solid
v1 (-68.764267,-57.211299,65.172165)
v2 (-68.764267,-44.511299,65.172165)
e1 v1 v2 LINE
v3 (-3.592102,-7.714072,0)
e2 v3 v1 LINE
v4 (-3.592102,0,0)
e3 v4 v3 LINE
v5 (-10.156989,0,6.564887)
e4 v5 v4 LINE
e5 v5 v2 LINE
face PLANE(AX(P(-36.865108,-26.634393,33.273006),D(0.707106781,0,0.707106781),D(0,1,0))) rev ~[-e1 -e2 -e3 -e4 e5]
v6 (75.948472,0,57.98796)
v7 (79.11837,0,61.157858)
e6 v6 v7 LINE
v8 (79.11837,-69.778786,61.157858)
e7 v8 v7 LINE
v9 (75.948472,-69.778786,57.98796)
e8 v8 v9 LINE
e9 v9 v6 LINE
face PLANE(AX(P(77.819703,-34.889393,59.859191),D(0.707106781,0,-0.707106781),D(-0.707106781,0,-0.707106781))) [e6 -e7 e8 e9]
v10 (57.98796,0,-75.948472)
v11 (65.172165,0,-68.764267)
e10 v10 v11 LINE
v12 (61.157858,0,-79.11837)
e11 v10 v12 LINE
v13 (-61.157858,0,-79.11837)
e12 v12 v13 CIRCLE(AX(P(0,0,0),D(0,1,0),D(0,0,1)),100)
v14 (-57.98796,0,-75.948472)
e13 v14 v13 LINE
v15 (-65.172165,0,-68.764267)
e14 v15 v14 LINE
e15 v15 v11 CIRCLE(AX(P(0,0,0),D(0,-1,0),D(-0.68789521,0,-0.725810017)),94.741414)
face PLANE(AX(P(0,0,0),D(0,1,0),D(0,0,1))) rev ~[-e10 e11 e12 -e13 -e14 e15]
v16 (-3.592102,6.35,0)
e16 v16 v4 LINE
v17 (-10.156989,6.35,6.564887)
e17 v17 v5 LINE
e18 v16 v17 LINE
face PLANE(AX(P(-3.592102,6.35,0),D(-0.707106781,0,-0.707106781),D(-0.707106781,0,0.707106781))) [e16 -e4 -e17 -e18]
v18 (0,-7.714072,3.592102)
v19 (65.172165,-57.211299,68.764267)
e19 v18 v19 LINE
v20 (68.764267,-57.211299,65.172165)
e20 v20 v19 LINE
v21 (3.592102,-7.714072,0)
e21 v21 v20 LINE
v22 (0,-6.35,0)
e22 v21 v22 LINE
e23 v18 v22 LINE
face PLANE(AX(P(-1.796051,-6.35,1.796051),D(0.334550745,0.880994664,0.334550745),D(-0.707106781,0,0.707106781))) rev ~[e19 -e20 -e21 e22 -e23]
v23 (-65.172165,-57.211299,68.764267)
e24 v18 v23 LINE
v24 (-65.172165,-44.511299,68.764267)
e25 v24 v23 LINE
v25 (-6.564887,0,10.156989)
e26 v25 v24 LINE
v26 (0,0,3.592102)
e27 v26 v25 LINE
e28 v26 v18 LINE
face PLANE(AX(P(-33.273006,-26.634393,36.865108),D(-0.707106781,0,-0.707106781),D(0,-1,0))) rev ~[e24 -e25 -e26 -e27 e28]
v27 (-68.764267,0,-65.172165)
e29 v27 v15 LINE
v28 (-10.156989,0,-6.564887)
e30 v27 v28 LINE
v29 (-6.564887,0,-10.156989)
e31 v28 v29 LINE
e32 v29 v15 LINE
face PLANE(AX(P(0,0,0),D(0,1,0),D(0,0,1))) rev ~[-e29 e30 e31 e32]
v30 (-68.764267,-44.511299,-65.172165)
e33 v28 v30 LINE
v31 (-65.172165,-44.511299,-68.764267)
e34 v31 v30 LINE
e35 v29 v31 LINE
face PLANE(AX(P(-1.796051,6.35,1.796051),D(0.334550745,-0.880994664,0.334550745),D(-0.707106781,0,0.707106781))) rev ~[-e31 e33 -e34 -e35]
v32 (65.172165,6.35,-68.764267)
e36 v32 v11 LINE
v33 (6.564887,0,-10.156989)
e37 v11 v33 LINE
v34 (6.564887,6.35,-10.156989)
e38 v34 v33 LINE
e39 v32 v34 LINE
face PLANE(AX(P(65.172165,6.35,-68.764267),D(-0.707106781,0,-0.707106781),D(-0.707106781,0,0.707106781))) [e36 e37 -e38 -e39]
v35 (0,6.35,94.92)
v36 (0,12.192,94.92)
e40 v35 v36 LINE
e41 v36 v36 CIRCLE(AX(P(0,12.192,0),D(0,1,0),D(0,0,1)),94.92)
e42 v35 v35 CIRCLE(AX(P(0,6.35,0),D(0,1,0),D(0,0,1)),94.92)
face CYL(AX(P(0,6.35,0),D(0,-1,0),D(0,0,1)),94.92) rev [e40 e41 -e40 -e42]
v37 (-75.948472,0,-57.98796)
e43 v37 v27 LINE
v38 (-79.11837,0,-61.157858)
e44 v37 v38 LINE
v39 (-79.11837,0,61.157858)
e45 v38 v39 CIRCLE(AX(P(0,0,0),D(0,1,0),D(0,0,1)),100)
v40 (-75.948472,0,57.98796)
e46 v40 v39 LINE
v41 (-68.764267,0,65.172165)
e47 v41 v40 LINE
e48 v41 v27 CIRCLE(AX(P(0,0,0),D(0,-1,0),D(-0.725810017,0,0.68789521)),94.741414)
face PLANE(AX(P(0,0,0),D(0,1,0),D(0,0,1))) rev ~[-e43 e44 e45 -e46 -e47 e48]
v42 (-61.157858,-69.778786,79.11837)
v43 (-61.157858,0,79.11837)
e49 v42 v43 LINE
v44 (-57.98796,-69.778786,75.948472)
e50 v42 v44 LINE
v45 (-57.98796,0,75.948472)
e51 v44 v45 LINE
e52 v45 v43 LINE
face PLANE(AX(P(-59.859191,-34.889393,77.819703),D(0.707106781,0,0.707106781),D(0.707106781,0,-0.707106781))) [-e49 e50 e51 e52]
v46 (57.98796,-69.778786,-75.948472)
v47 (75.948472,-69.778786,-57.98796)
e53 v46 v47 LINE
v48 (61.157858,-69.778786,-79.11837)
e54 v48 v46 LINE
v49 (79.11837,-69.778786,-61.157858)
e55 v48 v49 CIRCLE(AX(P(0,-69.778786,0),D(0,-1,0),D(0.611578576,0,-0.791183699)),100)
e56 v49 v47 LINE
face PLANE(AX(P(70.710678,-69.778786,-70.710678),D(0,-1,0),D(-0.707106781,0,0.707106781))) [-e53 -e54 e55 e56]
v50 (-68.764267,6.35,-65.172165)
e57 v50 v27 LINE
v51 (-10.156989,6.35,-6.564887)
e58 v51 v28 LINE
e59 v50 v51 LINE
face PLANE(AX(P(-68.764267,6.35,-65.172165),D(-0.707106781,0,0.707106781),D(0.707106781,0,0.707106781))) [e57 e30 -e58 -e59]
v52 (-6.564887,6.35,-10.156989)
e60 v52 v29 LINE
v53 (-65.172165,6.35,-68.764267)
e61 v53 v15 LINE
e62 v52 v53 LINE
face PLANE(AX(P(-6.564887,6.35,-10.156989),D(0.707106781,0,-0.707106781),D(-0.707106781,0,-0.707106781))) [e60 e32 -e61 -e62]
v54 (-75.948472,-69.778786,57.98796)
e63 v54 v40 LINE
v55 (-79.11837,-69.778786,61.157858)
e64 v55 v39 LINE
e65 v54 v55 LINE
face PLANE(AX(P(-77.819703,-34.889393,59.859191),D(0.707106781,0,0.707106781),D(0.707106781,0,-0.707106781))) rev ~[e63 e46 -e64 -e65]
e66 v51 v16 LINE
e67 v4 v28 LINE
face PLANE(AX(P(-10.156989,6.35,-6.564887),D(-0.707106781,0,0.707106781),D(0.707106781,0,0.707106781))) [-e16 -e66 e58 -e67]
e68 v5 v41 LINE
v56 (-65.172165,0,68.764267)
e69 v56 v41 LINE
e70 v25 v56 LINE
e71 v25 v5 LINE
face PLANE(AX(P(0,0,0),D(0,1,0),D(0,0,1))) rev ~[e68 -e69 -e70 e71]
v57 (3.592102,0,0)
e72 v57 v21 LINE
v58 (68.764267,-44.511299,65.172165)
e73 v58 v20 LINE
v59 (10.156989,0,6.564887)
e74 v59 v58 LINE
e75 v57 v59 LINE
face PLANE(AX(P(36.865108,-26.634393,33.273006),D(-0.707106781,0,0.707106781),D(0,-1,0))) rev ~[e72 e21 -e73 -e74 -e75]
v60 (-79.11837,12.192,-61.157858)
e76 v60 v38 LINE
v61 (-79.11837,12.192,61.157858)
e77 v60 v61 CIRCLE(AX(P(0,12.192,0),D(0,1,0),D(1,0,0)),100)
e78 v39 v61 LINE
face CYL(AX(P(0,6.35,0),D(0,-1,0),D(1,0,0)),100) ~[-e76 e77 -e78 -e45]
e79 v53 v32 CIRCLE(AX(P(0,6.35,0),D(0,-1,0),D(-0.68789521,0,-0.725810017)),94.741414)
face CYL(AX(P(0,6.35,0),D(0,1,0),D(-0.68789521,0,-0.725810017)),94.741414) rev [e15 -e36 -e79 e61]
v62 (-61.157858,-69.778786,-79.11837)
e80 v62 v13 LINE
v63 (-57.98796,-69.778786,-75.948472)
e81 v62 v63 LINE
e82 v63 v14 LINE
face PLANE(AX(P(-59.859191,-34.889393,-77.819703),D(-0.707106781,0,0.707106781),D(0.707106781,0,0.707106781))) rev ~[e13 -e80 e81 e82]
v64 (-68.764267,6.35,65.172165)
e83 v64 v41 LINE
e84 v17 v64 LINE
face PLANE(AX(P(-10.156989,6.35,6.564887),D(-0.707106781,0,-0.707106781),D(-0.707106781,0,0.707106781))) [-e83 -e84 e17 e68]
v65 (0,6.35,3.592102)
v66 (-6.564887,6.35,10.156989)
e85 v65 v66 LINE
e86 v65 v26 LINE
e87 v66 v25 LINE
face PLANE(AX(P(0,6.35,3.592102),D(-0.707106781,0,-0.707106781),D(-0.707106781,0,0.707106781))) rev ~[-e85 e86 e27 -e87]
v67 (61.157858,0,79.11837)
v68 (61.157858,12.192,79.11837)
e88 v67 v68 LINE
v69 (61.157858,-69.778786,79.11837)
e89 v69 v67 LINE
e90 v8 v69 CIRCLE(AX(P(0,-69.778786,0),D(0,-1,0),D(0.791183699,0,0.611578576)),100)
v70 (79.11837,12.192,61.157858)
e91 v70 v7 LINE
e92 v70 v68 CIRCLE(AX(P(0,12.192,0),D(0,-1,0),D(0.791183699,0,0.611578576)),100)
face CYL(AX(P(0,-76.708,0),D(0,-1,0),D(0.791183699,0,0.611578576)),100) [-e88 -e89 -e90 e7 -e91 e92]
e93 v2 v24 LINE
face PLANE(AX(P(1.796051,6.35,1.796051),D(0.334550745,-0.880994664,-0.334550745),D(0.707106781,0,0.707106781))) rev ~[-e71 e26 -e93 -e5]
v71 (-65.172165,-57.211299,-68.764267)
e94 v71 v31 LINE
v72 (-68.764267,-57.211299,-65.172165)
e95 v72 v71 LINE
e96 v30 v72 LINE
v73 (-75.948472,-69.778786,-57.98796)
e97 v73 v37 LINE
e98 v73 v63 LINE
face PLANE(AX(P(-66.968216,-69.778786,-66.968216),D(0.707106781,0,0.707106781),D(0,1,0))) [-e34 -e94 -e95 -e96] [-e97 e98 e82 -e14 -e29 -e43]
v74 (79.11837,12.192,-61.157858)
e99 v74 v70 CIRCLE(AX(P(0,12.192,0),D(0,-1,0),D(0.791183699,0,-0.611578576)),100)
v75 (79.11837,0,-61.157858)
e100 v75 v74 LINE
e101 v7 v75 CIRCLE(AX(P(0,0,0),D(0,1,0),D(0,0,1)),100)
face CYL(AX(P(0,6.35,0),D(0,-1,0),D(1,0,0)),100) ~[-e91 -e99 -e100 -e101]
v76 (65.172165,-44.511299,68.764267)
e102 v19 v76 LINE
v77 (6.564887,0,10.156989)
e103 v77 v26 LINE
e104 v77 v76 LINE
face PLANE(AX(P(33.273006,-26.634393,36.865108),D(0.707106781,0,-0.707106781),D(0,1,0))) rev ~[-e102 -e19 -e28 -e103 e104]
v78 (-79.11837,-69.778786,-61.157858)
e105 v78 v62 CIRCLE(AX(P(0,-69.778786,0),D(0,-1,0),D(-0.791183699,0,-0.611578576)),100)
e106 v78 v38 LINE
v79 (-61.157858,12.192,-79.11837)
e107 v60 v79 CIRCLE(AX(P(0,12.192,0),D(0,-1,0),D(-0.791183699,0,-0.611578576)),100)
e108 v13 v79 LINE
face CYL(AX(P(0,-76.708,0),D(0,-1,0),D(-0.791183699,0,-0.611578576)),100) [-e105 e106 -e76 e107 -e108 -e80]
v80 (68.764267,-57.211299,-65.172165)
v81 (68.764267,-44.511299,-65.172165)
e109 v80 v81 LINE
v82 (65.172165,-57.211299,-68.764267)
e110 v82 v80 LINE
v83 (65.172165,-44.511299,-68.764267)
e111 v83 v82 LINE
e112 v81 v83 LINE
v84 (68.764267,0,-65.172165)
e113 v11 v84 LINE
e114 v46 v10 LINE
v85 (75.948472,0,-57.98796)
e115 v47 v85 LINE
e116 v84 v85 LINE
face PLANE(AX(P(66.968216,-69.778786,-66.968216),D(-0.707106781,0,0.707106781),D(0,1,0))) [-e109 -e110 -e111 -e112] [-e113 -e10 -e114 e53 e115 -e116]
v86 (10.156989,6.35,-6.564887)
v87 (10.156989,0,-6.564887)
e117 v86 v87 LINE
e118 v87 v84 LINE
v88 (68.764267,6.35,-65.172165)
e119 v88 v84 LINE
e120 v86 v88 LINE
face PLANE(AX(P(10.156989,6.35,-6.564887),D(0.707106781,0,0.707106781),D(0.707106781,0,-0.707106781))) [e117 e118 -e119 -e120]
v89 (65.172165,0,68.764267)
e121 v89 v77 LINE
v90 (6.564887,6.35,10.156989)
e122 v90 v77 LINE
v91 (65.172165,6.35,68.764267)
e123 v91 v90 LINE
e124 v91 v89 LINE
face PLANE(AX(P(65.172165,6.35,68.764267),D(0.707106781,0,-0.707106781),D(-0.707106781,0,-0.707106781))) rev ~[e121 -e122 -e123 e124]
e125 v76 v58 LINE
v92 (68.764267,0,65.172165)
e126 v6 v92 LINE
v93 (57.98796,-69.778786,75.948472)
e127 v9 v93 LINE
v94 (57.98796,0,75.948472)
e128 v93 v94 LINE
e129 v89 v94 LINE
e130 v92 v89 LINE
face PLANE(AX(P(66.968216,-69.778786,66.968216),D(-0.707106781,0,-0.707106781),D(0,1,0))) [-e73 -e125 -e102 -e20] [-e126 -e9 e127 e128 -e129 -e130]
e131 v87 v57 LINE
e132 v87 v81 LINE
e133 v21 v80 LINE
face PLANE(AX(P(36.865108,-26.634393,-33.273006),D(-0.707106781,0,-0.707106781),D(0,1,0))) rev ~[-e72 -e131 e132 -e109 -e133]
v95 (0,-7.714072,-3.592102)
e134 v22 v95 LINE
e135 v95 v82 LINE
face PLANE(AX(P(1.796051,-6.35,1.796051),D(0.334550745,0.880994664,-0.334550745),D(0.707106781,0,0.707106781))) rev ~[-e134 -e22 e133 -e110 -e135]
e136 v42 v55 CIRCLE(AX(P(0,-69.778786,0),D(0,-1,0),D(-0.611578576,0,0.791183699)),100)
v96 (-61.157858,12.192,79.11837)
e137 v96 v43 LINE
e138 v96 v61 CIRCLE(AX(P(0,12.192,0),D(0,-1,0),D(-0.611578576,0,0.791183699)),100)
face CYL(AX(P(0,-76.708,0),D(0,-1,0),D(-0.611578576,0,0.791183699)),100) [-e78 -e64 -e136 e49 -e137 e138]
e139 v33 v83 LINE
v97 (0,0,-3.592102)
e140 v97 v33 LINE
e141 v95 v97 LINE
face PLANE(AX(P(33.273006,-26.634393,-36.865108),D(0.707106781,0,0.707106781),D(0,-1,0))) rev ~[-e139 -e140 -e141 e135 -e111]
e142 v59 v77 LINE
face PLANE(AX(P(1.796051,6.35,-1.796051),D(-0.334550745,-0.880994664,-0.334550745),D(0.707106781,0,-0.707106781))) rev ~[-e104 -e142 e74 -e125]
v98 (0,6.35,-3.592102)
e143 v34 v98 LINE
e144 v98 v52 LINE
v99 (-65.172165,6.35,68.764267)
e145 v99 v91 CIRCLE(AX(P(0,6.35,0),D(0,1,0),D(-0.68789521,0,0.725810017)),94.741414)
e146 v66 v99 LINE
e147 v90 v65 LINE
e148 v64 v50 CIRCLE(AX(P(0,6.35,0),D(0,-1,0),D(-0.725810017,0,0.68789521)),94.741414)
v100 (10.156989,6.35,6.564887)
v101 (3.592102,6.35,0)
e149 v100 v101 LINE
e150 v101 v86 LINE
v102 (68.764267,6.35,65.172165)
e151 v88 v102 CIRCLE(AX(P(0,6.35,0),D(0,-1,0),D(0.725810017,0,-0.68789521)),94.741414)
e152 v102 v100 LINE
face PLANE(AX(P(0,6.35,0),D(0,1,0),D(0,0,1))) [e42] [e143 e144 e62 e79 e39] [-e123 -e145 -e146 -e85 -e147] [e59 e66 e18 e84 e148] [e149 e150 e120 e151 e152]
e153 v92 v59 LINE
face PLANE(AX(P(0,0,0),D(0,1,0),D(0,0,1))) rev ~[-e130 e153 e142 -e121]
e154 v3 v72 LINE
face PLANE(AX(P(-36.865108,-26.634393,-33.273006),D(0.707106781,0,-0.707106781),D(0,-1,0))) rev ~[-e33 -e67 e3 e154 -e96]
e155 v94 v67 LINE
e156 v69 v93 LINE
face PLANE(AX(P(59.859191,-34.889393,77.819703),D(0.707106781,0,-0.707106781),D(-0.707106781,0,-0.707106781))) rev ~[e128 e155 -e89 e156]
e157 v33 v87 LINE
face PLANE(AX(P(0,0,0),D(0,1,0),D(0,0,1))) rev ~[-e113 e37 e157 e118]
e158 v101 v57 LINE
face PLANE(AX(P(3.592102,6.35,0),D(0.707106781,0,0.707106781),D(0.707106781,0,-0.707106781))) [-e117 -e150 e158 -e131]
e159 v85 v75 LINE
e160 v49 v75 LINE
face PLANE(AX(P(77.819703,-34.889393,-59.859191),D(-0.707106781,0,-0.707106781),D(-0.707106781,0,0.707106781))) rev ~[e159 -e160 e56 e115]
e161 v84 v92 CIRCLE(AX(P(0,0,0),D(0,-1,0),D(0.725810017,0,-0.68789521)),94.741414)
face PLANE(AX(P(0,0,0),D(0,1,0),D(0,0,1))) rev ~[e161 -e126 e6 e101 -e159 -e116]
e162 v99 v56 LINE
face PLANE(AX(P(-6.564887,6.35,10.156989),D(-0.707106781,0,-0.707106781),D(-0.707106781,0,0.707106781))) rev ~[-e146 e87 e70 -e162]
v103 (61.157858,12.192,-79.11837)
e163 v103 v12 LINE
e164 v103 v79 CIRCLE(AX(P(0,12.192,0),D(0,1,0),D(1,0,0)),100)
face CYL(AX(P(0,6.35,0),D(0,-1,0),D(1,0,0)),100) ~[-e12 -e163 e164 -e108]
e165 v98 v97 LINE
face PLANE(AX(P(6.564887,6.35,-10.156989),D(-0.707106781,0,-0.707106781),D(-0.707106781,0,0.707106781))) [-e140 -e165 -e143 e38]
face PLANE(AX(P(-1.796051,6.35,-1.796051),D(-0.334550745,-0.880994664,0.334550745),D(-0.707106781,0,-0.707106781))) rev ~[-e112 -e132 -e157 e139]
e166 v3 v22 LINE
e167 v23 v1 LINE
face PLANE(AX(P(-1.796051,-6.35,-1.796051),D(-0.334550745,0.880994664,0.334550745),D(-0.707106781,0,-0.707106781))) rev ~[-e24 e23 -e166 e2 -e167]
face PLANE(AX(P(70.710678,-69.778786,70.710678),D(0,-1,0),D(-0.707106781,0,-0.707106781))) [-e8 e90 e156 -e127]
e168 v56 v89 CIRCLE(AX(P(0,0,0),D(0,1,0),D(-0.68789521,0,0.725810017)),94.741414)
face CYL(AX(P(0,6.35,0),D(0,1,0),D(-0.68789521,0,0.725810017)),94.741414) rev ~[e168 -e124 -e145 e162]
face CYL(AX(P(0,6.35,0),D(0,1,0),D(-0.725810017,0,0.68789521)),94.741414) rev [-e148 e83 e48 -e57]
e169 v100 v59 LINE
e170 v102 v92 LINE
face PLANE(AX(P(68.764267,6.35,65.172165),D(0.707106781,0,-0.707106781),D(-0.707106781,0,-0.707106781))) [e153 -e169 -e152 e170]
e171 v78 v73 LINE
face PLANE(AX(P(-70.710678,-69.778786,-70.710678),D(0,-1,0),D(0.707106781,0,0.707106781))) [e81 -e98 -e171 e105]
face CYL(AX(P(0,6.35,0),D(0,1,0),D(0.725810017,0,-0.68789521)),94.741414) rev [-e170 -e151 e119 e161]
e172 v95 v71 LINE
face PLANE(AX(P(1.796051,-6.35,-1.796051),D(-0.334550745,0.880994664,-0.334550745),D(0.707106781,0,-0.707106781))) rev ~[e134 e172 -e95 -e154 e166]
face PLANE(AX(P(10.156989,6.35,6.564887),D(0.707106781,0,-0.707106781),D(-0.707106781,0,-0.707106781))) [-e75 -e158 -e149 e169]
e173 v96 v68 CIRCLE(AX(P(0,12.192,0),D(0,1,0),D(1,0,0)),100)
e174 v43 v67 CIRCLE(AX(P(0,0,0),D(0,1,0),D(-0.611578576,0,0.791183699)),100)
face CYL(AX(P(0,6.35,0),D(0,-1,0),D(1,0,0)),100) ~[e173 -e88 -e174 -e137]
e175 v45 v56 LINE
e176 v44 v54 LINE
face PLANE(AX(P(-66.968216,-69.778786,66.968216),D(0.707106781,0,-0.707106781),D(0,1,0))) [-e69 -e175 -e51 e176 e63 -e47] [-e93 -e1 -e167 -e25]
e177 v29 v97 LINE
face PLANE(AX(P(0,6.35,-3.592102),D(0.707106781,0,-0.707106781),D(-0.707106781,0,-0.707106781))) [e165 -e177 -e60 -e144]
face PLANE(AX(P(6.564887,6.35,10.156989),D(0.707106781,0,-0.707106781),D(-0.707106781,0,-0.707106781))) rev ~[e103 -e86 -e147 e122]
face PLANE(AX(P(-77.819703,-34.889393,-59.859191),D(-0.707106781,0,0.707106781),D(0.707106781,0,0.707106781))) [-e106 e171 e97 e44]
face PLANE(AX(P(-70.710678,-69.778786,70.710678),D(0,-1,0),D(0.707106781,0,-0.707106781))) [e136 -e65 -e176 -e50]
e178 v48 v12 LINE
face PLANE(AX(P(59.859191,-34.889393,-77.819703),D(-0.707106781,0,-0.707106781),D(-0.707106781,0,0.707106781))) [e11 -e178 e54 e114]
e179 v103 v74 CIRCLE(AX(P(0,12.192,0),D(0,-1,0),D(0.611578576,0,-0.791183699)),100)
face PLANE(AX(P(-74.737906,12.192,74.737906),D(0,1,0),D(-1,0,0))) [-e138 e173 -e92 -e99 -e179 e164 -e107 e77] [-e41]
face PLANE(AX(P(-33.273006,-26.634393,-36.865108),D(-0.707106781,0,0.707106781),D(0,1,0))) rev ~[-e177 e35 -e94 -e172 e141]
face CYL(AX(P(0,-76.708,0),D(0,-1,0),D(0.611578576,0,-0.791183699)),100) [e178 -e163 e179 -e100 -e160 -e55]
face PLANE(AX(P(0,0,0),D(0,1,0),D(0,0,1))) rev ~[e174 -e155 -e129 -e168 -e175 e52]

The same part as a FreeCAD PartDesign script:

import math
import FreeCAD as App
import Part
import Sketcher
Q = App.Units.Quantity

doc = App.newDocument("Part")
body = doc.addObject("PartDesign::Body", "Body")

# Sketch on XZ plane
sketch1 = doc.addObject("Sketcher::SketchObject", "Sketch")
body.addObject(sketch1)
sketch1.AttachmentSupport = (doc.XZ_Plane, [""])
sketch1.MapMode = "FlatFace"
sketch1.addGeometry(Part.Circle(App.Vector(0, 0, 0), App.Vector(0, 0, 1), 100), False)
sketch1.addConstraint([
    Sketcher.Constraint("Coincident", 0, 3, -1, 1),
    Sketcher.Constraint("Diameter", 0, Q("200 mm")),
])
pad1 = doc.addObject("PartDesign::Pad", "Pad")
body.addObject(pad1)
pad1.Profile = sketch1
pad1.Length = Q("0.25 in")
pad1.Reversed = True

# Sketch on XZ plane
sketch2 = doc.addObject("Sketcher::SketchObject", "Sketch001")
body.addObject(sketch2)
sketch2.AttachmentSupport = (doc.XZ_Plane, [""])
sketch2.MapMode = "FlatFace"
sketch2.AttachmentOffset = App.Placement(App.Vector(0, 0, -0.25 * 25.4), App.Rotation())
sketch2.addGeometry([
    Part.LineSegment(App.Vector(70.138114, 88.098626, 0), App.Vector(88.098626, 70.138114, 0)),  # 0
    Part.LineSegment(App.Vector(88.098626, 70.138114, 0), App.Vector(79.11837, 61.157858, 0)),  # 1
    Part.ArcOfCircle(Part.Circle(App.Vector(0, 0, 0), App.Vector(0, 0, 1), 100), math.radians(37.703732), math.radians(52.296268)),  # 2
    Part.LineSegment(App.Vector(61.157858, 79.11837, 0), App.Vector(70.138114, 88.098626, 0)),  # 3
    Part.ArcOfCircle(Part.Circle(App.Vector(0, 0, 0), App.Vector(0, 0, 1), 100), math.radians(-52.296268), math.radians(-37.703732)),  # 4
    Part.LineSegment(App.Vector(79.11837, -61.157858, 0), App.Vector(88.098626, -70.138114, 0)),  # 5
    Part.LineSegment(App.Vector(88.098626, -70.138114, 0), App.Vector(70.138114, -88.098626, 0)),  # 6
    Part.LineSegment(App.Vector(70.138114, -88.098626, 0), App.Vector(61.157858, -79.11837, 0)),  # 7
    Part.LineSegment(App.Vector(-88.098626, -70.138114, 0), App.Vector(-79.11837, -61.157858, 0)),  # 8
    Part.ArcOfCircle(Part.Circle(App.Vector(0, 0, 0), App.Vector(0, 0, 1), 100), math.radians(-142.296268), math.radians(-127.703732)),  # 9
    Part.LineSegment(App.Vector(-61.157858, -79.11837, 0), App.Vector(-70.138114, -88.098626, 0)),  # 10
    Part.LineSegment(App.Vector(-70.138114, -88.098626, 0), App.Vector(-88.098626, -70.138114, 0)),  # 11
    Part.LineSegment(App.Vector(-79.11837, 61.157858, 0), App.Vector(-88.098626, 70.138114, 0)),  # 12
    Part.LineSegment(App.Vector(-88.098626, 70.138114, 0), App.Vector(-70.138114, 88.098626, 0)),  # 13
    Part.LineSegment(App.Vector(-70.138114, 88.098626, 0), App.Vector(-61.157858, 79.11837, 0)),  # 14
    Part.ArcOfCircle(Part.Circle(App.Vector(0, 0, 0), App.Vector(0, 0, 1), 100), math.radians(127.703732), math.radians(142.296268)),  # 15
], False)
sketch2.addConstraint([
    Sketcher.Constraint("Coincident", 0, 2, 1, 1),
    Sketcher.Constraint("Coincident", 1, 2, 2, 1),
    Sketcher.Constraint("Coincident", 2, 2, 3, 1),
    Sketcher.Constraint("Coincident", 3, 2, 0, 1),
    Sketcher.Constraint("Coincident", 4, 2, 5, 1),
    Sketcher.Constraint("Coincident", 5, 2, 6, 1),
    Sketcher.Constraint("Coincident", 6, 2, 7, 1),
    Sketcher.Constraint("Coincident", 7, 2, 4, 1),
    Sketcher.Constraint("Coincident", 8, 2, 9, 1),
    Sketcher.Constraint("Coincident", 9, 2, 10, 1),
    Sketcher.Constraint("Coincident", 10, 2, 11, 1),
    Sketcher.Constraint("Coincident", 11, 2, 8, 1),
    Sketcher.Constraint("Coincident", 12, 2, 13, 1),
    Sketcher.Constraint("Coincident", 13, 2, 14, 1),
    Sketcher.Constraint("Coincident", 14, 2, 15, 1),
    Sketcher.Constraint("Coincident", 15, 2, 12, 1),
    Sketcher.Constraint("Coincident", 2, 3, -1, 1),
    Sketcher.Constraint("Coincident", 4, 3, -1, 1),
    Sketcher.Constraint("Coincident", 9, 3, -1, 1),
    Sketcher.Constraint("Coincident", 15, 3, -1, 1),
    Sketcher.Constraint("Equal", 2, 4),
    Sketcher.Constraint("Equal", 4, 9),
    Sketcher.Constraint("Equal", 9, 15),
    Sketcher.Constraint("Symmetric", 3, 2, 10, 2, -1, 1),
    Sketcher.Constraint("Symmetric", 0, 2, 11, 2, -1, 1),
    Sketcher.Constraint("Symmetric", 5, 2, 12, 2, -1, 1),
    Sketcher.Constraint("Symmetric", 6, 2, 13, 2, -1, 1),
    Sketcher.Constraint("Symmetric", 6, 2, 10, 2, -2),
    Sketcher.Constraint("Symmetric", 5, 2, 11, 2, -2),
    Sketcher.Constraint("Perpendicular", 0, 1),
    Sketcher.Constraint("Parallel", 1, 3),
    Sketcher.Constraint("Perpendicular", 3, 5),
    Sketcher.Constraint("Perpendicular", 5, 6),
    Sketcher.Constraint("Perpendicular", 6, 7),
    Sketcher.Constraint("Perpendicular", 7, 8),
    Sketcher.Constraint("Parallel", 8, 10),
    Sketcher.Constraint("Parallel", 11, 12),
    Sketcher.Constraint("Perpendicular", 13, 14),
    Sketcher.Constraint("Equal", 1, 3),
    Sketcher.Constraint("Distance", 0, Q("1 in")),
    Sketcher.Constraint("Distance", 1, Q("0.5 in")),
    Sketcher.Constraint("Radius", 2, Q("100 mm")),
])
pad2 = doc.addObject("PartDesign::Pad", "Pad001")
body.addObject(pad2)
pad2.Profile = sketch2
pad2.Type = "TwoLengths"
pad2.Length = Q("0.59 in")
pad2.Length2 = 76.128786
pad2.Reversed = True

# Sketch on XZ plane
sketch3 = doc.addObject("Sketcher::SketchObject", "Sketch002")
body.addObject(sketch3)
sketch3.AttachmentSupport = (doc.XZ_Plane, [""])
sketch3.MapMode = "FlatFace"
sketch3.AttachmentOffset = App.Placement(App.Vector(0, 0, -0.25 * 25.4), App.Rotation())
sketch3.addGeometry([
    Part.Circle(App.Vector(0, 0, 0), App.Vector(0, 0, 1), 100),
    Part.Circle(App.Vector(0, 0, 0), App.Vector(0, 0, 1), 94.92),
], False)
sketch3.addConstraint([
    Sketcher.Constraint("Coincident", 0, 3, -1, 1),
    Sketcher.Constraint("Coincident", 1, 3, -1, 1),
    Sketcher.Constraint("Diameter", 0, Q("200 mm")),
    Sketcher.Constraint("Diameter", 1, Q("189.84 mm")),
])
pad3 = doc.addObject("PartDesign::Pad", "Pad002")
body.addObject(pad3)
pad3.Profile = sketch3
pad3.Length = Q("0.23 in")
pad3.Reversed = True

# Sketch on an angled plane
sketch4 = doc.addObject("Sketcher::SketchObject", "Sketch003")
body.addObject(sketch4)
sketch4.Placement = App.Placement(App.Vector(-68.342063, -59.618786, -71.934165), App.Rotation(App.Vector(-0.262612866, 0.928476691, 0.262612866), App.Vector(-0.656532164, -0.371390677, 0.656532164), App.Vector(0.707106781, 0, 0.707106781), "ZXY"))
sketch4.addGeometry([
    Part.LineSegment(App.Vector(1.886665, 4.716662, 0), App.Vector(0, 0, 0)),
    Part.LineSegment(App.Vector(0, 0, 0), App.Vector(11.791654, -4.716662, 0)),
    Part.LineSegment(App.Vector(11.791654, -4.716662, 0), App.Vector(13.678319, 0, 0)),
    Part.LineSegment(App.Vector(13.678319, 0, 0), App.Vector(1.886665, 4.716662, 0)),
], False)
sketch4.addConstraint([
    Sketcher.Constraint("Coincident", 0, 2, 1, 1),
    Sketcher.Constraint("Coincident", 1, 2, 2, 1),
    Sketcher.Constraint("Coincident", 2, 2, 3, 1),
    Sketcher.Constraint("Coincident", 3, 2, 0, 1),
    Sketcher.Constraint("Coincident", 0, 2, -1, 1),
    Sketcher.Constraint("PointOnObject", 2, 2, -1),
    Sketcher.Constraint("Perpendicular", 0, 1),
    Sketcher.Constraint("Perpendicular", 1, 2),
    Sketcher.Constraint("Perpendicular", 2, 3),
    Sketcher.Constraint("Distance", 0, Q("0.2 in")),
    Sketcher.Constraint("Distance", 1, Q("0.5 in")),
])

# Sketch on an angled plane
sketch5 = doc.addObject("Sketcher::SketchObject", "Sketch004")
body.addObject(sketch5)
sketch5.Placement = App.Placement(App.Vector(0, 0, 0), App.Rotation(App.Vector(-0.707106781, 0, -0.707106781), App.Vector(0, 0.999999999, 0), App.Vector(0.707106781, 0, -0.707106781), "ZXY"))
sketch5.addGeometry(Part.LineSegment(App.Vector(0, 0, 0), App.Vector(99.190272, -53.268786, 0)), False)
sketch5.addConstraint([
    Sketcher.Constraint("Coincident", 0, 1, -1, 1),
    Sketcher.Constraint("Distance", 0, Q("112.588958 mm")),
    Sketcher.Constraint("DistanceX", -1, 1, 0, 2, Q("99.190272 mm")),
])
doc.recompute()

additivepipe = doc.addObject("PartDesign::AdditivePipe", "AdditivePipe")
body.addObject(additivepipe)
additivepipe.Profile = sketch4
additivepipe.Spine = (sketch5, ["Edge1"])
doc.recompute()

polarpattern = doc.addObject("PartDesign::PolarPattern", "PolarPattern")
body.addObject(polarpattern)
polarpattern.Originals = [additivepipe]
polarpattern.Axis = (doc.Y_Axis, [""])
polarpattern.Angle = 360
polarpattern.Occurrences = 4
body.Tip = polarpattern

# Sketch on an angled plane
sketch6 = doc.addObject("Sketcher::SketchObject", "Sketch005")
body.addObject(sketch6)
sketch6.Placement = App.Placement(App.Vector(70.138114, 0, 70.138114), App.Rotation(App.Vector(0.707106781, 0, -0.707106781), App.Vector(0, 0.999999999, 0), App.Vector(0.707106781, 0, 0.707106781), "ZXY"))
sketch6.addGeometry([
    Part.LineSegment(App.Vector(-2.54, -46.918786, 0), App.Vector(-2.54, -59.618786, 0)),
    Part.LineSegment(App.Vector(-2.54, -59.618786, 0), App.Vector(2.54, -59.618786, 0)),
    Part.LineSegment(App.Vector(2.54, -59.618786, 0), App.Vector(2.54, -46.918786, 0)),
    Part.LineSegment(App.Vector(2.54, -46.918786, 0), App.Vector(-2.54, -46.918786, 0)),
], False)
sketch6.addConstraint([
    Sketcher.Constraint("Coincident", 0, 2, 1, 1),
    Sketcher.Constraint("Coincident", 1, 2, 2, 1),
    Sketcher.Constraint("Coincident", 2, 2, 3, 1),
    Sketcher.Constraint("Coincident", 3, 2, 0, 1),
    Sketcher.Constraint("Vertical", 0),
    Sketcher.Constraint("Horizontal", 1),
    Sketcher.Constraint("Vertical", 2),
    Sketcher.Constraint("Horizontal", 3),
    Sketcher.Constraint("DistanceX", 1, 1, 1, 2, Q("0.2 in")),
    Sketcher.Constraint("DistanceY", 0, 2, 0, 1, Q("0.5 in")),
    Sketcher.Constraint("DistanceX", 0, 2, -1, 1, Q("0.1 in")),
    Sketcher.Constraint("DistanceY", 0, 2, -1, 1, Q("59.618786 mm")),
])
pad4 = doc.addObject("PartDesign::Pad", "Pad003")
body.addObject(pad4)
pad4.Profile = sketch6
pad4.Length = Q("0.25 in")
doc.recompute()

polarpattern2 = doc.addObject("PartDesign::PolarPattern", "PolarPattern001")
body.addObject(polarpattern2)
polarpattern2.Originals = [pad4]
polarpattern2.Axis = (doc.Y_Axis, [""])
polarpattern2.Angle = 360
polarpattern2.Occurrences = 4
body.Tip = polarpattern2

# Sketch on XZ plane
sketch7 = doc.addObject("Sketcher::SketchObject", "Sketch006")
body.addObject(sketch7)
sketch7.AttachmentSupport = (doc.XZ_Plane, [""])
sketch7.MapMode = "FlatFace"
sketch7.AttachmentOffset = App.Placement(App.Vector(0, 0, -0.25 * 25.4), App.Rotation())
sketch7.addGeometry([
    Part.LineSegment(App.Vector(-68.764267, 65.172165, 0), App.Vector(-10.156989, 6.564887, 0)),  # 0
    Part.LineSegment(App.Vector(-10.156989, 6.564887, 0), App.Vector(-3.592102, 0, 0)),  # 1
    Part.LineSegment(App.Vector(-3.592102, 0, 0), App.Vector(-10.156989, -6.564887, 0)),  # 2
    Part.LineSegment(App.Vector(-10.156989, -6.564887, 0), App.Vector(-68.764267, -65.172165, 0)),  # 3
    Part.ArcOfCircle(Part.Circle(App.Vector(0, 0, 0), App.Vector(0, 0, 1), 94.741414), math.radians(136.536273), math.radians(223.463727)),  # 4
    Part.LineSegment(App.Vector(-6.564887, 10.156989, 0), App.Vector(-65.172165, 68.764267, 0)),  # 5
    Part.ArcOfCircle(Part.Circle(App.Vector(0, 0, 0), App.Vector(0, 0, 1), 94.741414), math.radians(46.536273), math.radians(133.463727)),  # 6
    Part.LineSegment(App.Vector(65.172165, 68.764267, 0), App.Vector(6.564887, 10.156989, 0)),  # 7
    Part.LineSegment(App.Vector(6.564887, 10.156989, 0), App.Vector(0, 3.592102, 0)),  # 8
    Part.LineSegment(App.Vector(0, 3.592102, 0), App.Vector(-6.564887, 10.156989, 0)),  # 9
    Part.LineSegment(App.Vector(-65.172165, -68.764267, 0), App.Vector(-6.564887, -10.156989, 0)),  # 10
    Part.LineSegment(App.Vector(-6.564887, -10.156989, 0), App.Vector(0, -3.592102, 0)),  # 11
    Part.LineSegment(App.Vector(0, -3.592102, 0), App.Vector(6.564887, -10.156989, 0)),  # 12
    Part.LineSegment(App.Vector(6.564887, -10.156989, 0), App.Vector(65.172165, -68.764267, 0)),  # 13
    Part.ArcOfCircle(Part.Circle(App.Vector(0, 0, 0), App.Vector(0, 0, 1), 94.741414), math.radians(-133.463727), math.radians(-46.536273)),  # 14
    Part.LineSegment(App.Vector(68.764267, -65.172165, 0), App.Vector(10.156989, -6.564887, 0)),  # 15
    Part.LineSegment(App.Vector(10.156989, -6.564887, 0), App.Vector(3.592102, 0, 0)),  # 16
    Part.LineSegment(App.Vector(3.592102, 0, 0), App.Vector(10.156989, 6.564887, 0)),  # 17
    Part.LineSegment(App.Vector(10.156989, 6.564887, 0), App.Vector(68.764267, 65.172165, 0)),  # 18
    Part.ArcOfCircle(Part.Circle(App.Vector(0, 0, 0), App.Vector(0, 0, 1), 94.741414), math.radians(-43.463727), math.radians(43.463727)),  # 19
], False)
sketch7.addConstraint([
    Sketcher.Constraint("Coincident", 0, 2, 1, 1),
    Sketcher.Constraint("Coincident", 1, 2, 2, 1),
    Sketcher.Constraint("Coincident", 2, 2, 3, 1),
    Sketcher.Constraint("Coincident", 3, 2, 4, 2),
    Sketcher.Constraint("Coincident", 4, 1, 0, 1),
    Sketcher.Constraint("Coincident", 5, 2, 6, 2),
    Sketcher.Constraint("Coincident", 6, 1, 7, 1),
    Sketcher.Constraint("Coincident", 7, 2, 8, 1),
    Sketcher.Constraint("Coincident", 8, 2, 9, 1),
    Sketcher.Constraint("Coincident", 9, 2, 5, 1),
    Sketcher.Constraint("Coincident", 10, 2, 11, 1),
    Sketcher.Constraint("Coincident", 11, 2, 12, 1),
    Sketcher.Constraint("Coincident", 12, 2, 13, 1),
    Sketcher.Constraint("Coincident", 13, 2, 14, 2),
    Sketcher.Constraint("Coincident", 14, 1, 10, 1),
    Sketcher.Constraint("Coincident", 15, 2, 16, 1),
    Sketcher.Constraint("Coincident", 16, 2, 17, 1),
    Sketcher.Constraint("Coincident", 17, 2, 18, 1),
    Sketcher.Constraint("Coincident", 18, 2, 19, 2),
    Sketcher.Constraint("Coincident", 19, 1, 15, 1),
    Sketcher.Constraint("Coincident", 4, 3, -1, 1),
    Sketcher.Constraint("Coincident", 6, 3, -1, 1),
    Sketcher.Constraint("Coincident", 14, 3, -1, 1),
    Sketcher.Constraint("Coincident", 19, 3, -1, 1),
    Sketcher.Constraint("Equal", 4, 6),
    Sketcher.Constraint("Equal", 6, 14),
    Sketcher.Constraint("Equal", 14, 19),
    Sketcher.Constraint("Symmetric", 7, 2, 10, 2, -1, 1),
    Sketcher.Constraint("Symmetric", 8, 2, 11, 2, -1, 1),
    Sketcher.Constraint("Symmetric", 9, 2, 12, 2, -1, 1),
    Sketcher.Constraint("Symmetric", 0, 2, 15, 2, -1, 1),
    Sketcher.Constraint("Symmetric", 1, 2, 16, 2, -1, 1),
    Sketcher.Constraint("Symmetric", 2, 2, 17, 2, -1, 1),
    Sketcher.Constraint("Symmetric", 7, 2, 9, 2, -2),
    Sketcher.Constraint("Symmetric", 2, 2, 15, 2, -2),
    Sketcher.Constraint("PointOnObject", 1, 2, -1),
    Sketcher.Constraint("PointOnObject", 8, 2, -2),
    Sketcher.Constraint("Parallel", 0, 1),
    Sketcher.Constraint("Perpendicular", 1, 2),
    Sketcher.Constraint("Parallel", 2, 3),
    Sketcher.Constraint("Perpendicular", 3, 5),
    Sketcher.Constraint("Perpendicular", 5, 7),
    Sketcher.Constraint("Parallel", 7, 8),
    Sketcher.Constraint("Perpendicular", 9, 10),
    Sketcher.Constraint("Parallel", 12, 13),
    Sketcher.Constraint("Parallel", 13, 15),
    Sketcher.Constraint("Parallel", 17, 18),
    Sketcher.Constraint("Equal", 3, 5),
    Sketcher.Constraint("Equal", 2, 8),
    Sketcher.Constraint("Radius", 4, Q("94.741414 mm")),
    Sketcher.Constraint("DistanceX", 0, 2, -1, 1, Q("10.156989 mm")),
    Sketcher.Constraint("DistanceY", 3, 2, 0, 2, Q("71.737052 mm")),
])
pocket1 = doc.addObject("PartDesign::Pocket", "Pocket")
body.addObject(pocket1)
pocket1.Profile = sketch7
pocket1.Length = Q("0.25 in")
pocket1.Reversed = True

# Sketch on XZ plane
sketch8 = doc.addObject("Sketcher::SketchObject", "Sketch007")
body.addObject(sketch8)
sketch8.AttachmentSupport = (doc.XZ_Plane, [""])
sketch8.MapMode = "FlatFace"
sketch8.AttachmentOffset = App.Placement(App.Vector(0, 0, -0.48 * 25.4), App.Rotation())
sketch8.addGeometry([
    Part.LineSegment(App.Vector(79.11837, -61.157858, 0), App.Vector(88.098626, -70.138114, 0)),
    Part.LineSegment(App.Vector(88.098626, -70.138114, 0), App.Vector(70.138114, -88.098626, 0)),
    Part.LineSegment(App.Vector(70.138114, -88.098626, 0), App.Vector(61.157858, -79.11837, 0)),
    Part.ArcOfCircle(Part.Circle(App.Vector(0, 0, 0), App.Vector(0, 0, 1), 100), math.radians(-52.296268), math.radians(-37.703732)),
], False)
sketch8.addConstraint([
    Sketcher.Constraint("Coincident", 0, 2, 1, 1),
    Sketcher.Constraint("Coincident", 1, 2, 2, 1),
    Sketcher.Constraint("Coincident", 2, 2, 3, 1),
    Sketcher.Constraint("Coincident", 3, 2, 0, 1),
    Sketcher.Constraint("Coincident", 3, 3, -1, 1),
    Sketcher.Constraint("Perpendicular", 0, 1),
    Sketcher.Constraint("Perpendicular", 1, 2),
    Sketcher.Constraint("Equal", 0, 2),
    Sketcher.Constraint("Distance", 1, Q("1 in")),
    Sketcher.Constraint("Angle", 0, Q("-45 deg")),
    Sketcher.Constraint("Distance", 0, Q("0.5 in")),
    Sketcher.Constraint("Radius", 3, Q("100 mm")),
])
pocket2 = doc.addObject("PartDesign::Pocket", "Pocket001")
body.addObject(pocket2)
pocket2.Profile = sketch8
pocket2.Length = Q("0.36 in")
doc.recompute()

polarpattern3 = doc.addObject("PartDesign::PolarPattern", "PolarPattern002")
body.addObject(polarpattern3)
polarpattern3.Originals = [pocket2]
polarpattern3.Axis = (doc.Y_Axis, [""])
polarpattern3.Angle = 360
polarpattern3.Occurrences = 4
body.Tip = polarpattern3

# Sketch on an angled plane
sketch9 = doc.addObject("Sketcher::SketchObject", "Sketch008")
body.addObject(sketch9)
sketch9.Placement = App.Placement(App.Vector(0, 0, 0), App.Rotation(App.Vector(-0.707106781, 0, -0.707106781), App.Vector(0, 0.999999999, 0), App.Vector(0.707106781, 0, -0.707106781), "ZXY"))
sketch9.addGeometry([
    Part.LineSegment(App.Vector(-94.707359, 0, 0), App.Vector(-100, 0, 0)),
    Part.LineSegment(App.Vector(-100, 0, 0), App.Vector(-100, -69.778786, 0)),
    Part.LineSegment(App.Vector(-100, -69.778786, 0), App.Vector(-94.707359, -69.778786, 0)),
    Part.LineSegment(App.Vector(-94.707359, -69.778786, 0), App.Vector(-94.707359, 0, 0)),
], False)
sketch9.addConstraint([
    Sketcher.Constraint("Coincident", 0, 2, 1, 1),
    Sketcher.Constraint("Coincident", 1, 2, 2, 1),
    Sketcher.Constraint("Coincident", 2, 2, 3, 1),
    Sketcher.Constraint("Coincident", 3, 2, 0, 1),
    Sketcher.Constraint("Horizontal", 0),
    Sketcher.Constraint("Vertical", 1),
    Sketcher.Constraint("Horizontal", 2),
    Sketcher.Constraint("Vertical", 3),
    Sketcher.Constraint("PointOnObject", 0, 2, -1),
    Sketcher.Constraint("DistanceX", 0, 2, 0, 1, Q("5.292641 mm")),
    Sketcher.Constraint("DistanceX", 0, 2, -1, 1, Q("100 mm")),
    Sketcher.Constraint("DistanceY", 1, 2, 1, 1, Q("69.778786 mm")),
])
pad5 = doc.addObject("PartDesign::Pad", "Pad004")
body.addObject(pad5)
pad5.Profile = sketch9
pad5.Length = Q("1 in")
pad5.Midplane = True
doc.recompute()

polarpattern4 = doc.addObject("PartDesign::PolarPattern", "PolarPattern003")
body.addObject(polarpattern4)
polarpattern4.Originals = [pad5]
polarpattern4.Axis = (doc.Y_Axis, [""])
polarpattern4.Angle = 360
polarpattern4.Occurrences = 4
body.Tip = polarpattern4

# Sketch on an angled plane
sketch10 = doc.addObject("Sketcher::SketchObject", "Sketch009")
body.addObject(sketch10)
sketch10.Placement = App.Placement(App.Vector(79.11837, 0, 79.11837), App.Rotation(App.Vector(0.707106781, 0, -0.707106781), App.Vector(0, 0.999999999, 0), App.Vector(0.707106781, 0, 0.707106781), "ZXY"))
sketch10.addGeometry([
    Part.LineSegment(App.Vector(-12.7, 12.192, 0), App.Vector(-12.7, -120.65, 0)),
    Part.LineSegment(App.Vector(-12.7, -120.65, 0), App.Vector(12.7, -120.65, 0)),
    Part.LineSegment(App.Vector(12.7, -120.65, 0), App.Vector(12.7, 12.192, 0)),
    Part.LineSegment(App.Vector(12.7, 12.192, 0), App.Vector(-12.7, 12.192, 0)),
], False)
sketch10.addConstraint([
    Sketcher.Constraint("Coincident", 0, 2, 1, 1),
    Sketcher.Constraint("Coincident", 1, 2, 2, 1),
    Sketcher.Constraint("Coincident", 2, 2, 3, 1),
    Sketcher.Constraint("Coincident", 3, 2, 0, 1),
    Sketcher.Constraint("Vertical", 0),
    Sketcher.Constraint("Horizontal", 1),
    Sketcher.Constraint("Vertical", 2),
    Sketcher.Constraint("Horizontal", 3),
    Sketcher.Constraint("DistanceX", 1, 1, 1, 2, Q("1 in")),
    Sketcher.Constraint("DistanceY", 0, 2, 0, 1, Q("5.23 in")),
    Sketcher.Constraint("DistanceX", 0, 2, -1, 1, Q("0.5 in")),
    Sketcher.Constraint("DistanceY", 0, 2, -1, 1, Q("4.75 in")),
])
pocket3 = doc.addObject("PartDesign::Pocket", "Pocket002")
body.addObject(pocket3)
pocket3.Profile = sketch10
pocket3.Length = Q("0.3 in")
doc.recompute()

polarpattern5 = doc.addObject("PartDesign::PolarPattern", "PolarPattern004")
body.addObject(polarpattern5)
polarpattern5.Originals = [pocket3]
polarpattern5.Axis = (doc.Y_Axis, [""])
polarpattern5.Angle = 360
polarpattern5.Occurrences = 4
body.Tip = polarpattern5

# Sketch on XZ plane
sketch11 = doc.addObject("Sketcher::SketchObject", "Sketch010")
body.addObject(sketch11)
sketch11.AttachmentSupport = (doc.XZ_Plane, [""])
sketch11.MapMode = "FlatFace"
sketch11.AttachmentOffset = App.Placement(App.Vector(0, 0, 3.02 * 25.4), App.Rotation())
sketch11.addGeometry([
    Part.LineSegment(App.Vector(-61.157858, -79.11837, 0), App.Vector(-64.74996, -82.710472, 0)),  # 0
    Part.LineSegment(App.Vector(-64.74996, -82.710472, 0), App.Vector(-82.710472, -64.74996, 0)),  # 1
    Part.LineSegment(App.Vector(-82.710472, -64.74996, 0), App.Vector(-79.11837, -61.157858, 0)),  # 2
    Part.ArcOfCircle(Part.Circle(App.Vector(0, 0, 0), App.Vector(0, 0, 1), 100), math.radians(-142.296268), math.radians(-127.703732)),  # 3
    Part.LineSegment(App.Vector(-64.74996, 82.710472, 0), App.Vector(-61.157858, 79.11837, 0)),  # 4
    Part.ArcOfCircle(Part.Circle(App.Vector(0, 0, 0), App.Vector(0, 0, 1), 100), math.radians(127.703732), math.radians(142.296268)),  # 5
    Part.LineSegment(App.Vector(-79.11837, 61.157858, 0), App.Vector(-82.710472, 64.74996, 0)),  # 6
    Part.LineSegment(App.Vector(-82.710472, 64.74996, 0), App.Vector(-64.74996, 82.710472, 0)),  # 7
    Part.LineSegment(App.Vector(61.157858, 79.11837, 0), App.Vector(64.74996, 82.710472, 0)),  # 8
    Part.LineSegment(App.Vector(64.74996, 82.710472, 0), App.Vector(82.710472, 64.74996, 0)),  # 9
    Part.LineSegment(App.Vector(82.710472, 64.74996, 0), App.Vector(79.11837, 61.157858, 0)),  # 10
    Part.ArcOfCircle(Part.Circle(App.Vector(0, 0, 0), App.Vector(0, 0, 1), 100), math.radians(37.703732), math.radians(52.296268)),  # 11
    Part.LineSegment(App.Vector(79.11837, -61.157858, 0), App.Vector(82.710472, -64.74996, 0)),  # 12
    Part.LineSegment(App.Vector(82.710472, -64.74996, 0), App.Vector(64.74996, -82.710472, 0)),  # 13
    Part.LineSegment(App.Vector(64.74996, -82.710472, 0), App.Vector(61.157858, -79.11837, 0)),  # 14
    Part.ArcOfCircle(Part.Circle(App.Vector(0, 0, 0), App.Vector(0, 0, 1), 100), math.radians(-52.296268), math.radians(-37.703732)),  # 15
], False)
sketch11.addConstraint([
    Sketcher.Constraint("Coincident", 0, 2, 1, 1),
    Sketcher.Constraint("Coincident", 1, 2, 2, 1),
    Sketcher.Constraint("Coincident", 2, 2, 3, 1),
    Sketcher.Constraint("Coincident", 3, 2, 0, 1),
    Sketcher.Constraint("Coincident", 4, 2, 5, 1),
    Sketcher.Constraint("Coincident", 5, 2, 6, 1),
    Sketcher.Constraint("Coincident", 6, 2, 7, 1),
    Sketcher.Constraint("Coincident", 7, 2, 4, 1),
    Sketcher.Constraint("Coincident", 8, 2, 9, 1),
    Sketcher.Constraint("Coincident", 9, 2, 10, 1),
    Sketcher.Constraint("Coincident", 10, 2, 11, 1),
    Sketcher.Constraint("Coincident", 11, 2, 8, 1),
    Sketcher.Constraint("Coincident", 12, 2, 13, 1),
    Sketcher.Constraint("Coincident", 13, 2, 14, 1),
    Sketcher.Constraint("Coincident", 14, 2, 15, 1),
    Sketcher.Constraint("Coincident", 15, 2, 12, 1),
    Sketcher.Constraint("Coincident", 3, 3, -1, 1),
    Sketcher.Constraint("Coincident", 5, 3, -1, 1),
    Sketcher.Constraint("Coincident", 11, 3, -1, 1),
    Sketcher.Constraint("Coincident", 15, 3, -1, 1),
    Sketcher.Constraint("Equal", 3, 5),
    Sketcher.Constraint("Equal", 5, 11),
    Sketcher.Constraint("Equal", 11, 15),
    Sketcher.Constraint("Symmetric", 0, 2, 8, 2, -1, 1),
    Sketcher.Constraint("Symmetric", 1, 2, 9, 2, -1, 1),
    Sketcher.Constraint("Symmetric", 6, 2, 12, 2, -1, 1),
    Sketcher.Constraint("Symmetric", 7, 2, 13, 2, -1, 1),
    Sketcher.Constraint("Symmetric", 7, 2, 8, 2, -2),
    Sketcher.Constraint("Symmetric", 6, 2, 9, 2, -2),
    Sketcher.Constraint("Perpendicular", 0, 1),
    Sketcher.Constraint("Perpendicular", 1, 2),
    Sketcher.Constraint("Perpendicular", 2, 4),
    Sketcher.Constraint("Parallel", 4, 6),
    Sketcher.Constraint("Perpendicular", 6, 7),
    Sketcher.Constraint("Parallel", 7, 8),
    Sketcher.Constraint("Perpendicular", 9, 10),
    Sketcher.Constraint("Perpendicular", 10, 12),
    Sketcher.Constraint("Perpendicular", 13, 14),
    Sketcher.Constraint("Equal", 0, 2),
    Sketcher.Constraint("Distance", 1, Q("1 in")),
    Sketcher.Constraint("Distance", 0, Q("0.2 in")),
    Sketcher.Constraint("Radius", 3, Q("100 mm")),
])
pocket4 = doc.addObject("PartDesign::Pocket", "Pocket003")
body.addObject(pocket4)
pocket4.Profile = sketch11
pocket4.Length = Q("3.5 in")

doc.recompute()
